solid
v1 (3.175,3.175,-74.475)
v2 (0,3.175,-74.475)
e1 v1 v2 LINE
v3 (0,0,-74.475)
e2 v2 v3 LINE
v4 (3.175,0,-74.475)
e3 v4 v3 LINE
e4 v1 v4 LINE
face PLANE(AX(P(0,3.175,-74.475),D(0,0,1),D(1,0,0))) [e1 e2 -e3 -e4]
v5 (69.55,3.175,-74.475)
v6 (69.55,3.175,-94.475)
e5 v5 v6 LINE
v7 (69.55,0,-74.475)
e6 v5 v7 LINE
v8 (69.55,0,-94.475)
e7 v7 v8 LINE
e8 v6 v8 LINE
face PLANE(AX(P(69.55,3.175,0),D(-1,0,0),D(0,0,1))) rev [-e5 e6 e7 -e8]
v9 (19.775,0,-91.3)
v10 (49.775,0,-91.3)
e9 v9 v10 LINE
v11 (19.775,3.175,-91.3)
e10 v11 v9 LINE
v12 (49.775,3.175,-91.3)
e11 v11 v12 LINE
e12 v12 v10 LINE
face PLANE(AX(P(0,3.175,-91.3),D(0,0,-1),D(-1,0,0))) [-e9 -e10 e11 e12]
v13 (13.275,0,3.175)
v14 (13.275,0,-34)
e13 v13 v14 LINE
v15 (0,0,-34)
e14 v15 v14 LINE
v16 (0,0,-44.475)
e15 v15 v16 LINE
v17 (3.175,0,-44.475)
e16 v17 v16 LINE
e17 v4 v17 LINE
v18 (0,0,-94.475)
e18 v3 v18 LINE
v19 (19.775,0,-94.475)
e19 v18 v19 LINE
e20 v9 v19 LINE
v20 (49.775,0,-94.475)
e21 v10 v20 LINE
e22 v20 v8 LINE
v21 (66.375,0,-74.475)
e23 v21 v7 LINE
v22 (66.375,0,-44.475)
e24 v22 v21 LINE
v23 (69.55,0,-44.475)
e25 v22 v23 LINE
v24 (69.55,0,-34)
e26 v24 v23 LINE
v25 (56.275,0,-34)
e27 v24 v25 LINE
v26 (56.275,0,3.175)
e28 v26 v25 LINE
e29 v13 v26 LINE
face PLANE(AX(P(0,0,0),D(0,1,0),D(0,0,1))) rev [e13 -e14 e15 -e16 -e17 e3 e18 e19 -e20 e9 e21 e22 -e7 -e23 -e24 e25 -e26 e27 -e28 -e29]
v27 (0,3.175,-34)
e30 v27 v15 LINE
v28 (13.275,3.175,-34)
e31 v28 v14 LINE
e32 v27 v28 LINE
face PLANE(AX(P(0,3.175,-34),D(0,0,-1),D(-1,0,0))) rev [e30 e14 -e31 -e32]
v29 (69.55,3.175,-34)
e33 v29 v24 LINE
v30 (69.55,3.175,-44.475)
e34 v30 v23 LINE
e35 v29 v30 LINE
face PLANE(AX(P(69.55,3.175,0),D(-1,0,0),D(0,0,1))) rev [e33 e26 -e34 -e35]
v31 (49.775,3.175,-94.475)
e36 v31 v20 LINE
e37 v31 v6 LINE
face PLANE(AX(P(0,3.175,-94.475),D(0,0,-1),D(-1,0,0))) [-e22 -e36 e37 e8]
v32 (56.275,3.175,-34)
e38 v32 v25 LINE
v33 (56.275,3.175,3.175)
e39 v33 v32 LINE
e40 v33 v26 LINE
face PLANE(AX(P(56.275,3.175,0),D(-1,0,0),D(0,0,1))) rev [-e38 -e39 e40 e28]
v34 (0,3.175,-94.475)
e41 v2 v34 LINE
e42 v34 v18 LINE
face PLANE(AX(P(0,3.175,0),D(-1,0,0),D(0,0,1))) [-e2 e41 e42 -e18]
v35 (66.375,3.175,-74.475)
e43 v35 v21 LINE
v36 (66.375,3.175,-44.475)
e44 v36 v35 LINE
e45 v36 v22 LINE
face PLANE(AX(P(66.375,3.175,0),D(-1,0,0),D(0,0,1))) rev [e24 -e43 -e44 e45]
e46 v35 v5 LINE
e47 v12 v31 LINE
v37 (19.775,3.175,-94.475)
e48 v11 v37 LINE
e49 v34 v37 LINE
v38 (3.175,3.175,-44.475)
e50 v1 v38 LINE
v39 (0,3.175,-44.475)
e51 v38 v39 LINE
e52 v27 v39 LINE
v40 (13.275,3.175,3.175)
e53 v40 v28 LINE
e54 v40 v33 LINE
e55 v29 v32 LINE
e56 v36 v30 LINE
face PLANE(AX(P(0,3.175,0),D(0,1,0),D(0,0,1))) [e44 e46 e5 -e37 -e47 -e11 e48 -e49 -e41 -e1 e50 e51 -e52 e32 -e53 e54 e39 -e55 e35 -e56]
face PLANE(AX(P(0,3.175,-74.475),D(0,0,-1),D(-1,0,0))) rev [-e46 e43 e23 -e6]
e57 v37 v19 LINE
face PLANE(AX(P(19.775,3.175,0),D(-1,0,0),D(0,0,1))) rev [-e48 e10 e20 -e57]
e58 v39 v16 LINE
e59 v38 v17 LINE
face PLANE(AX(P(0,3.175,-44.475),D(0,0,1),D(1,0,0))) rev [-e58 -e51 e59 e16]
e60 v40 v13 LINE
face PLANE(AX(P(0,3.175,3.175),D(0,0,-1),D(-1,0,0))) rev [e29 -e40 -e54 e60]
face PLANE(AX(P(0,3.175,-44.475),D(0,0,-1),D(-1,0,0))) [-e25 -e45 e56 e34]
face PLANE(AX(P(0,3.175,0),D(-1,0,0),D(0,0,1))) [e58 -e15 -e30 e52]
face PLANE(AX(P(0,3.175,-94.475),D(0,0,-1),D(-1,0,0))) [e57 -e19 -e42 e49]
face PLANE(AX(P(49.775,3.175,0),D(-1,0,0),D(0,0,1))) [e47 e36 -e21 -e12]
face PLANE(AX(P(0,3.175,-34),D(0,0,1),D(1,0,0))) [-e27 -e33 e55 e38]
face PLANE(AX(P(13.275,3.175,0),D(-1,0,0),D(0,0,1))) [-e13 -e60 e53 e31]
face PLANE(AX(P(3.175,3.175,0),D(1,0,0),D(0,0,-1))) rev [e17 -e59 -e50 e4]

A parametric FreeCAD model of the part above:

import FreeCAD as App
import Part
import Sketcher
from FreeCAD import Vector

doc = App.newDocument("Part")
body = doc.addObject("PartDesign::Body", "Body")

# Sketch on XZ plane
sketch1 = body.newObject("Sketcher::SketchObject", "Sketch")
sketch1.AttachmentSupport = (doc.getObject("XZ_Plane"), [""])
sketch1.MapMode = "FlatFace"
sketch1.addGeometry([
    Part.LineSegment(Vector(49.775, -91.3, 0), Vector(19.775, -91.3, 0)),  # 0
    Part.LineSegment(Vector(19.775, -91.3, 0), Vector(19.775, -94.475, 0)),  # 1
    Part.LineSegment(Vector(19.775, -94.475, 0), Vector(0, -94.475, 0)),  # 2
    Part.LineSegment(Vector(0, -94.475, 0), Vector(0, -74.475, 0)),  # 3
    Part.LineSegment(Vector(0, -74.475, 0), Vector(3.175, -74.475, 0)),  # 4
    Part.LineSegment(Vector(3.175, -74.475, 0), Vector(3.175, -44.475, 0)),  # 5
    Part.LineSegment(Vector(3.175, -44.475, 0), Vector(0, -44.475, 0)),  # 6
    Part.LineSegment(Vector(0, -44.475, 0), Vector(0, -34, 0)),  # 7
    Part.LineSegment(Vector(0, -34, 0), Vector(13.275, -34, 0)),  # 8
    Part.LineSegment(Vector(13.275, -34, 0), Vector(13.275, 3.175, 0)),  # 9
    Part.LineSegment(Vector(13.275, 3.175, 0), Vector(56.275, 3.175, 0)),  # 10
    Part.LineSegment(Vector(56.275, 3.175, 0), Vector(56.275, -34, 0)),  # 11
    Part.LineSegment(Vector(56.275, -34, 0), Vector(69.55, -34, 0)),  # 12
    Part.LineSegment(Vector(69.55, -34, 0), Vector(69.55, -44.475, 0)),  # 13
    Part.LineSegment(Vector(69.55, -44.475, 0), Vector(66.375, -44.475, 0)),  # 14
    Part.LineSegment(Vector(66.375, -44.475, 0), Vector(66.375, -74.475, 0)),  # 15
    Part.LineSegment(Vector(66.375, -74.475, 0), Vector(69.55, -74.475, 0)),  # 16
    Part.LineSegment(Vector(69.55, -74.475, 0), Vector(69.55, -94.475, 0)),  # 17
    Part.LineSegment(Vector(69.55, -94.475, 0), Vector(49.775, -94.475, 0)),  # 18
    Part.LineSegment(Vector(49.775, -94.475, 0), Vector(49.775, -91.3, 0)),  # 19
], False)
sketch1.addConstraint([
    Sketcher.Constraint("Coincident", 0, 2, 1, 1),
    Sketcher.Constraint("Coincident", 1, 2, 2, 1),
    Sketcher.Constraint("Coincident", 2, 2, 3, 1),
    Sketcher.Constraint("Coincident", 3, 2, 4, 1),
    Sketcher.Constraint("Coincident", 4, 2, 5, 1),
    Sketcher.Constraint("Coincident", 5, 2, 6, 1),
    Sketcher.Constraint("Coincident", 6, 2, 7, 1),
    Sketcher.Constraint("Coincident", 7, 2, 8, 1),
    Sketcher.Constraint("Coincident", 8, 2, 9, 1),
    Sketcher.Constraint("Coincident", 9, 2, 10, 1),
    Sketcher.Constraint("Coincident", 10, 2, 11, 1),
    Sketcher.Constraint("Coincident", 11, 2, 12, 1),
    Sketcher.Constraint("Coincident", 12, 2, 13, 1),
    Sketcher.Constraint("Coincident", 13, 2, 14, 1),
    Sketcher.Constraint("Coincident", 14, 2, 15, 1),
    Sketcher.Constraint("Coincident", 15, 2, 16, 1),
    Sketcher.Constraint("Coincident", 16, 2, 17, 1),
    Sketcher.Constraint("Coincident", 17, 2, 18, 1),
    Sketcher.Constraint("Coincident", 18, 2, 19, 1),
    Sketcher.Constraint("Coincident", 19, 2, 0, 1),
    Sketcher.Constraint("Horizontal", 0),
    Sketcher.Constraint("Vertical", 1),
    Sketcher.Constraint("Horizontal", 2),
    Sketcher.Constraint("Vertical", 3),
    Sketcher.Constraint("Horizontal", 4),
    Sketcher.Constraint("Vertical", 5),
    Sketcher.Constraint("Horizontal", 6),
    Sketcher.Constraint("Vertical", 7),
    Sketcher.Constraint("Horizontal", 8),
    Sketcher.Constraint("Vertical", 9),
    Sketcher.Constraint("Horizontal", 10),
    Sketcher.Constraint("Vertical", 11),
    Sketcher.Constraint("Horizontal", 12),
    Sketcher.Constraint("Vertical", 13),
    Sketcher.Constraint("Horizontal", 14),
    Sketcher.Constraint("Vertical", 15),
    Sketcher.Constraint("Horizontal", 16),
    Sketcher.Constraint("Vertical", 17),
    Sketcher.Constraint("Horizontal", 18),
    Sketcher.Constraint("Vertical", 19),
    Sketcher.Constraint("PointOnObject", 2, 2, -2),
    Sketcher.Constraint("PointOnObject", 6, 2, -2),
    Sketcher.Constraint("Horizontal", 8, 2, 11, 2),
    Sketcher.Constraint("Horizontal", 6, 2, 13, 2),
    Sketcher.Constraint("Horizontal", 4, 2, 15, 2),
    Sketcher.Constraint("Horizontal", 2, 2, 17, 2),
    Sketcher.Constraint("Vertical", 13, 2, 16, 2),
    Sketcher.Constraint("Equal", 8, 12),
    Sketcher.Constraint("Equal", 6, 14),
    Sketcher.Constraint("Equal", 2, 18),
    Sketcher.Constraint("Equal", 16, 1),
    Sketcher.Constraint("Equal", 0, 5),
    Sketcher.Constraint("DistanceX", 0, 2, 0, 1, 30.0),
    Sketcher.Constraint("DistanceX", 10, 1, 10, 2, 43.0),
    Sketcher.Constraint("DistanceY", 3, 1, 3, 2, 20.0),
    Sketcher.Constraint("DistanceY", 7, 2, -1, 1, 34.0),
    Sketcher.Constraint("DistanceY", 0, 2, -1, 1, 91.3),
    Sketcher.Constraint("DistanceX", 4, 2, 0, 2, 16.6),
    Sketcher.Constraint("DistanceX", 2, 2, 2, 1, 19.775),
    Sketcher.Constraint("DistanceY", 9, 1, 9, 2, 37.175),
])
pad1 = body.newObject("PartDesign::Pad", "Pad")
pad1.Profile = sketch1
pad1.Length = 3.175
pad1.Reversed = True

doc.recompute()
